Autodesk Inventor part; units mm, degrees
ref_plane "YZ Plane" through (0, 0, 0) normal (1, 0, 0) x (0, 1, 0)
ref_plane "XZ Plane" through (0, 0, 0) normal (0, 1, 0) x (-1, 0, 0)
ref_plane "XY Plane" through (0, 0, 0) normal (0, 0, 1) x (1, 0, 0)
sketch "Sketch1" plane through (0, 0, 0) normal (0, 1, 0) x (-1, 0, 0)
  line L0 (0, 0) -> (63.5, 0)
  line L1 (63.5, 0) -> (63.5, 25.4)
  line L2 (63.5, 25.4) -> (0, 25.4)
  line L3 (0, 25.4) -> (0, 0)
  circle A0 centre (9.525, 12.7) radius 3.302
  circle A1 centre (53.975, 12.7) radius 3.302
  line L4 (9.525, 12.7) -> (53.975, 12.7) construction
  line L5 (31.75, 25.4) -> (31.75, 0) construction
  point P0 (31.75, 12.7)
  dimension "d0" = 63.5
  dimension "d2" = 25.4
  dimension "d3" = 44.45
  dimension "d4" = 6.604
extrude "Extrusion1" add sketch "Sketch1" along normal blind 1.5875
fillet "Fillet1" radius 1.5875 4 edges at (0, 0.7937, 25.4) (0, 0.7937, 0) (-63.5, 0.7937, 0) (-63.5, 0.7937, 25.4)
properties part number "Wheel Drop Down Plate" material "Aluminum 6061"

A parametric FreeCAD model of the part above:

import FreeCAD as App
import Part
import Sketcher
Q = App.Units.Quantity


def edges_at(feature, points):
    """Names of the edges that pass closest to the given points."""
    edges = feature.Shape.Edges
    near = lambda p: min(range(len(edges)), key=lambda i: edges[i].distToShape(Part.Vertex(*p))[0])
    return sorted({f"Edge{near(p) + 1}" for p in points})


def add_polygon(sketch, points):
    """Adds a closed chain of lines whose ends are joined by coincident constraints."""
    first, n = sketch.GeometryCount, len(points)
    for a, b in zip(points, points[1:] + points[:1]):
        sketch.addGeometry(Part.LineSegment(App.Vector(*a, 0), App.Vector(*b, 0)), False)
    for i in range(n):
        sketch.addConstraint(Sketcher.Constraint("Coincident", first + i, 2, first + (i + 1) % n, 1))

doc = App.newDocument("Part")
body = doc.addObject("PartDesign::Body", "Body")

# Sketch on XZ plane
sketch1 = doc.addObject("Sketcher::SketchObject", "Sketch")
body.addObject(sketch1)
sketch1.AttachmentSupport = (doc.XZ_Plane, [""])
sketch1.MapMode = "FlatFace"
add_polygon(sketch1, [(0, 25.4), (0, 0), (-63.5, 0), (-63.5, 25.4)])  # lines 0-3
sketch1.addGeometry(Part.Circle(App.Vector(-9.5, 12.7, 0), App.Vector(0, 0, 1), 3.3), False)  # 4
sketch1.addGeometry(Part.Circle(App.Vector(-54, 12.7, 0), App.Vector(0, 0, 1), 3.3), False)  # 5
sketch1.addConstraint(Sketcher.Constraint("Vertical", 0))
sketch1.addConstraint(Sketcher.Constraint("Horizontal", 1))
sketch1.addConstraint(Sketcher.Constraint("Vertical", 2))
sketch1.addConstraint(Sketcher.Constraint("Horizontal", 3))
sketch1.addConstraint(Sketcher.Constraint("Coincident", 0, 2, -1, 1))
sketch1.addConstraint(Sketcher.Constraint("Equal", 4, 5))
sketch1.addConstraint(Sketcher.Constraint("Horizontal", 4, 3, 5, 3))
sketch1.addConstraint(Sketcher.Constraint("Diameter", 4, Q("0.26 in")))
sketch1.addConstraint(Sketcher.Constraint("DistanceY", 0, 2, 0, 1, Q("1 in")))
sketch1.addConstraint(Sketcher.Constraint("DistanceX", 1, 2, 1, 1, Q("2.5 in")))
sketch1.addConstraint(Sketcher.Constraint("DistanceX", 5, 3, 4, 3, Q("1.75 in")))
sketch1.addConstraint(Sketcher.Constraint("DistanceY", -1, 1, 4, 3, Q("0.5 in")))
sketch1.addConstraint(Sketcher.Constraint("DistanceX", 4, 3, -1, 1, Q("0.375 in")))
pad1 = doc.addObject("PartDesign::Pad", "Pad")
body.addObject(pad1)
pad1.Profile = sketch1
pad1.Length = Q("0.0625 in")
pad1.Reversed = True
doc.recompute()

fillet = doc.addObject("PartDesign::Fillet", "Fillet")
body.addObject(fillet)
fillet.Base = (pad1, edges_at(pad1, [
    (0, 0.794, 25.4),
    (0, 0.794, 0),
    (-63.5, 0.794, 0),
    (-63.5, 0.794, 25.4),
]))
fillet.Radius = Q("0.0625 in")

doc.recompute()
